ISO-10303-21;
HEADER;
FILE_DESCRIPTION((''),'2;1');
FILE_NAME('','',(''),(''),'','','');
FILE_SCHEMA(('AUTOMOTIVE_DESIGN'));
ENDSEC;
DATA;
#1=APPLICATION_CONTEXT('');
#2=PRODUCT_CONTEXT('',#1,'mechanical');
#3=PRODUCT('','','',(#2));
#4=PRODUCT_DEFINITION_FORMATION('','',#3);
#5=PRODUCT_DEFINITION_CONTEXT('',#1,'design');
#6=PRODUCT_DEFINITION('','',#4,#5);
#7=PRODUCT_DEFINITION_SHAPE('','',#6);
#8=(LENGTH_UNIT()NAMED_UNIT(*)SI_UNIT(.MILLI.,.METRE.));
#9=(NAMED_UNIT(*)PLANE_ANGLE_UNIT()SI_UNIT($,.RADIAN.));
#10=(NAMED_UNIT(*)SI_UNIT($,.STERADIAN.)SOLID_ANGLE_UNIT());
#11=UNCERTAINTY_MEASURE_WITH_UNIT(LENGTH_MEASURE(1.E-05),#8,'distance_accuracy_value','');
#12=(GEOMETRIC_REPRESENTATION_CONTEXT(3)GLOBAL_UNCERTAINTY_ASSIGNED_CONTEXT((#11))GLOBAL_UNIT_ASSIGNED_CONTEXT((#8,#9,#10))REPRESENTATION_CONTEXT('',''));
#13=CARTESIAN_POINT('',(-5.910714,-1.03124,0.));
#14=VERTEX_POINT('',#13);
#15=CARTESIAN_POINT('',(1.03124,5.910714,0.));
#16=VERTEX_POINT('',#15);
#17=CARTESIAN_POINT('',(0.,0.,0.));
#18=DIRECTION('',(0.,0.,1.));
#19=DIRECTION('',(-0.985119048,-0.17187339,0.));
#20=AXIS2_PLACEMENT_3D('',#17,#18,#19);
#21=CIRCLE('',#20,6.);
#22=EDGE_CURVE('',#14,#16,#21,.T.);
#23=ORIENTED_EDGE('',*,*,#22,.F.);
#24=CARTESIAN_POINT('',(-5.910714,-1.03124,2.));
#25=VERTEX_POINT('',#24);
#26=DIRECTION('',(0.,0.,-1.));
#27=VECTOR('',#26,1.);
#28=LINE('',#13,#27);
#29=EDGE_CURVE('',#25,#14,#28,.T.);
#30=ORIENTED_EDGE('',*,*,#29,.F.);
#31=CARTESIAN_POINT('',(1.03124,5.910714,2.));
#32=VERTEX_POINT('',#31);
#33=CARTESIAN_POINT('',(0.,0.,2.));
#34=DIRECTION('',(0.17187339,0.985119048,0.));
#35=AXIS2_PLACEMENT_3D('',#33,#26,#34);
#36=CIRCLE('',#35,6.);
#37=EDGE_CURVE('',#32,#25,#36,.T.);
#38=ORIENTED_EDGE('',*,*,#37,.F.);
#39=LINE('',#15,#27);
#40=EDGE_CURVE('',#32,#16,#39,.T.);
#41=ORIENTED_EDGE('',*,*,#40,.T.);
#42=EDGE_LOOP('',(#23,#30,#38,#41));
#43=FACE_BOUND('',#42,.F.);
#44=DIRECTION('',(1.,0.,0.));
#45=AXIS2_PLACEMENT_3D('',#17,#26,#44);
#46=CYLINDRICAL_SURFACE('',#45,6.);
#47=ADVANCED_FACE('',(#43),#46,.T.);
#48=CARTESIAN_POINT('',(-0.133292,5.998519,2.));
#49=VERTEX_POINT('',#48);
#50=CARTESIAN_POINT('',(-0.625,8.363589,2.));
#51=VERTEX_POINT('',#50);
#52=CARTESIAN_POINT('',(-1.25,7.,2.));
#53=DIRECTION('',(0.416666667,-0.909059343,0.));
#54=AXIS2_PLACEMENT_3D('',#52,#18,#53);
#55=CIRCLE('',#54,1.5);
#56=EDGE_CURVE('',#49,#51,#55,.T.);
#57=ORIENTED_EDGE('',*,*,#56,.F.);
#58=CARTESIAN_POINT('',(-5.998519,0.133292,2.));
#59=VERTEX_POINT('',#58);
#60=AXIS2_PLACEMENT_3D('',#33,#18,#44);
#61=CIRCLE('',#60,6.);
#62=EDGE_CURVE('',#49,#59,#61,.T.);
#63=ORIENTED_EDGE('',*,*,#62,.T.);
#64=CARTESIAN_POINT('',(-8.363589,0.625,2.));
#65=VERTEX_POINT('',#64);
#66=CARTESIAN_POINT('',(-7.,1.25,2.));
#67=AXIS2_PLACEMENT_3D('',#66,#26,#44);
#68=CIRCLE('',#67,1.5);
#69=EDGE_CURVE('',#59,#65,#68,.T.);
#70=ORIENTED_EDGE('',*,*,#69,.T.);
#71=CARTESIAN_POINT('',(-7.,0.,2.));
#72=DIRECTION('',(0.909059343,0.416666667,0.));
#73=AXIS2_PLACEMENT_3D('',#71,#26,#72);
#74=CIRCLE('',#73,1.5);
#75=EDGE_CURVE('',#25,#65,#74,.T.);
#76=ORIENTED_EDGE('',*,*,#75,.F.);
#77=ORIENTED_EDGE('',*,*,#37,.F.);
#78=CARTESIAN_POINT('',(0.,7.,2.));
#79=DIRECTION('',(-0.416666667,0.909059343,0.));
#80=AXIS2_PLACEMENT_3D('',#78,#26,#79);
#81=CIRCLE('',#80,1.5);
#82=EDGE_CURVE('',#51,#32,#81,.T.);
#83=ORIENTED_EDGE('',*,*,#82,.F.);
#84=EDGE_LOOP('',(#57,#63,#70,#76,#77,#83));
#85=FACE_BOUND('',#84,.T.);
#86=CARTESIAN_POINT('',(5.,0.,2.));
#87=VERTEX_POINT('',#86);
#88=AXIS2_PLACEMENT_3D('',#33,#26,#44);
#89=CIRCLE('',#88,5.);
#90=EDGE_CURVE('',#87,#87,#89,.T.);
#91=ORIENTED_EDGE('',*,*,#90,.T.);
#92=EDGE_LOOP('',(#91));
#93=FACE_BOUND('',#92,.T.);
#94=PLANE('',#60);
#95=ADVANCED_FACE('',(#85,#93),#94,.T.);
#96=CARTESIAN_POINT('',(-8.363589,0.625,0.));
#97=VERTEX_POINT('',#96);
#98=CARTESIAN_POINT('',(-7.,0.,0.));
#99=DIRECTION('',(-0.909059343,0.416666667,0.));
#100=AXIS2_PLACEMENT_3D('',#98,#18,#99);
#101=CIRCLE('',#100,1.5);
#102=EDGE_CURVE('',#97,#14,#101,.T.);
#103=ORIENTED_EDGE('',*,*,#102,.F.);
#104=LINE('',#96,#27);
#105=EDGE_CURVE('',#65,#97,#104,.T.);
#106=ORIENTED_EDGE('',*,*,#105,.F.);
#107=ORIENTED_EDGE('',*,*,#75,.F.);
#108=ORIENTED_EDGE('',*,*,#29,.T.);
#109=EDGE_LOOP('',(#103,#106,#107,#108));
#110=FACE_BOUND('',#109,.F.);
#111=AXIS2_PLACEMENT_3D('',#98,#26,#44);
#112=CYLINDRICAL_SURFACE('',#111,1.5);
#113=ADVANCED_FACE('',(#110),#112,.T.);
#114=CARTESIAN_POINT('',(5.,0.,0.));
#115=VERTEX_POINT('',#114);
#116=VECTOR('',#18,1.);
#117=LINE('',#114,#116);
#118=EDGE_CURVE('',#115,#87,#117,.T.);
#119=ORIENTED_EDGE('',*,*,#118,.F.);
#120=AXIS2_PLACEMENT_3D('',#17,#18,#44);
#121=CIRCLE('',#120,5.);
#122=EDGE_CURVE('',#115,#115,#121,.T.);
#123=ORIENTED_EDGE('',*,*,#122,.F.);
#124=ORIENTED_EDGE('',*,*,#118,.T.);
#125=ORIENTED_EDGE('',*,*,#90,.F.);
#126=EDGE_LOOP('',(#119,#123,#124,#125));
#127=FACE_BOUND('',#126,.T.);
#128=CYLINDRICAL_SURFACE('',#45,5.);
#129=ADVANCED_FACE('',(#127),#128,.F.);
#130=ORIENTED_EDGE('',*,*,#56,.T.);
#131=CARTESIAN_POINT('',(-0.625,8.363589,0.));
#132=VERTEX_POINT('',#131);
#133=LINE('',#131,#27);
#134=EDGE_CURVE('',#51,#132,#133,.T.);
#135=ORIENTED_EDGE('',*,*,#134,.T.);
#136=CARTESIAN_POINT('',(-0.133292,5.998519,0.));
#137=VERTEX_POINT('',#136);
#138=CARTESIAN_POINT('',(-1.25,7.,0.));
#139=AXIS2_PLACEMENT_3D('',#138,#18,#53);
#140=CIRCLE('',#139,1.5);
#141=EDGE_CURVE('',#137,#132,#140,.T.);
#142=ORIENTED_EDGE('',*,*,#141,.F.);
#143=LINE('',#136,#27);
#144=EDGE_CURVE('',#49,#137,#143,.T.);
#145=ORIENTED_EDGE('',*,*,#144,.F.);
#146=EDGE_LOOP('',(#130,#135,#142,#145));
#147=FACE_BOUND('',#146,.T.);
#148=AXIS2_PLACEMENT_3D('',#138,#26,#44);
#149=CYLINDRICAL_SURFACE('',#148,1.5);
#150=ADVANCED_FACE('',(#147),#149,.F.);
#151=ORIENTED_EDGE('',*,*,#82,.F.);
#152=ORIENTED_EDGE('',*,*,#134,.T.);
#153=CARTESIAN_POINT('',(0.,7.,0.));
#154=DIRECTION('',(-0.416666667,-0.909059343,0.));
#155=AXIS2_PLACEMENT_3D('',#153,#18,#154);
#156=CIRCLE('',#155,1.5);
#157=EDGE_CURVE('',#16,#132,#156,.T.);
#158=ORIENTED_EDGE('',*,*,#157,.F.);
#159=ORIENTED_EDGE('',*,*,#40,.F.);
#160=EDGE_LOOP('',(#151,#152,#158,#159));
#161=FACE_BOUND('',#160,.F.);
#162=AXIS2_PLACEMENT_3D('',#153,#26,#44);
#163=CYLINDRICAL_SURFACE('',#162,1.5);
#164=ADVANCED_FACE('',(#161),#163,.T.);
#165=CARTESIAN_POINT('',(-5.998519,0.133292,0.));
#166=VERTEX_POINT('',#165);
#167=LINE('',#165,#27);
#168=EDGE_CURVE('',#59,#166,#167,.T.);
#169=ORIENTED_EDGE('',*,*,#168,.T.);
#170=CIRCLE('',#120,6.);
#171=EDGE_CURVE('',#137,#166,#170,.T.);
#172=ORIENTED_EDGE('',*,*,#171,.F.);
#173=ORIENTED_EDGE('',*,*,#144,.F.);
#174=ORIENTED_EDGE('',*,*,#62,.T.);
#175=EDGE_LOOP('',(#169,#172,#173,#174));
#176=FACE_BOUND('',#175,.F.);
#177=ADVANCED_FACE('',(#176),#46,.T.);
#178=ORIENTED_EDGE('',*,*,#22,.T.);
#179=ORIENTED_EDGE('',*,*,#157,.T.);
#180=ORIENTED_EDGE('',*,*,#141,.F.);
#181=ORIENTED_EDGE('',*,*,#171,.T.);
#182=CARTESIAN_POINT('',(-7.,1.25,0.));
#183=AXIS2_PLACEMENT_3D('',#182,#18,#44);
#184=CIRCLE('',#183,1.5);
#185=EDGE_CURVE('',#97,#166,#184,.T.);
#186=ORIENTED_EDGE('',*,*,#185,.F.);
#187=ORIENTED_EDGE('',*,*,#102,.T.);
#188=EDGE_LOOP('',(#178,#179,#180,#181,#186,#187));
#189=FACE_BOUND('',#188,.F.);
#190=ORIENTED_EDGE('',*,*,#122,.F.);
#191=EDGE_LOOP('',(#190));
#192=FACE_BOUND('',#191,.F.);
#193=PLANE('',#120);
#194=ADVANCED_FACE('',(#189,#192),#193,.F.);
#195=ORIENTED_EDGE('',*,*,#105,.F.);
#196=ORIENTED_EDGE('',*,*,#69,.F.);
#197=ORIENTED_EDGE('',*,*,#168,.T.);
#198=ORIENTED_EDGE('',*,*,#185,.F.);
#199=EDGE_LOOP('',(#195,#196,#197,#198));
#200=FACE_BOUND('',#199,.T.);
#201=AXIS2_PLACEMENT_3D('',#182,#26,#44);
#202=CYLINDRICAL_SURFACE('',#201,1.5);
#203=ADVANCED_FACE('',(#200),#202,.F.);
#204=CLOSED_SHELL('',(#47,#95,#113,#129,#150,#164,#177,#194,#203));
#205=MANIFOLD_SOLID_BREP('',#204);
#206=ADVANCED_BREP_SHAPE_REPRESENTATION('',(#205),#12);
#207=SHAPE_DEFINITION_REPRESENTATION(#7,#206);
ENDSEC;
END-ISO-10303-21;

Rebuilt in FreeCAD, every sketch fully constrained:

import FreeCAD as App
import Part
import Sketcher

V = App.Vector
Q = App.Units.Quantity

doc = App.newDocument("Part")
body = doc.addObject("PartDesign::Body", "Body")

# Sketch on XY plane
sketch1 = doc.addObject("Sketcher::SketchObject", "Sketch")
body.addObject(sketch1)
sketch1.AttachmentSupport = (doc.XY_Plane, [""])
sketch1.MapMode = "FlatFace"
sketch1.addGeometry(Part.Circle(V(0, 0, 0), V(0, 0, 1), 5), False)
sketch1.addConstraint(Sketcher.Constraint("Coincident", 0, 3, -1, 1))
sketch1.addConstraint(Sketcher.Constraint("Diameter", 0, Q("10 mm")))
pad1 = doc.addObject("PartDesign::Pad", "Pad")
body.addObject(pad1)
pad1.Profile = sketch1
pad1.Length = 3
body2 = doc.addObject("PartDesign::Body", "Body001")

# Sketch on XY plane
sketch2 = doc.addObject("Sketcher::SketchObject", "Sketch001")
body2.addObject(sketch2)
sketch2.AttachmentSupport = (doc.getObject("XY_Plane001"), [""])
sketch2.MapMode = "FlatFace"
sketch2.addGeometry(Part.Circle(V(0, 0, 0), V(0, 0, 1), 6), False)
sketch2.addConstraint(Sketcher.Constraint("Coincident", 0, 3, -1, 1))
sketch2.addConstraint(Sketcher.Constraint("Diameter", 0, Q("12 mm")))
pad2 = doc.addObject("PartDesign::Pad", "Pad001")
body2.addObject(pad2)
pad2.Profile = sketch2
pad2.Length = 2
doc.recompute()

boolean = doc.addObject("PartDesign::Boolean", "Boolean")
body2.addObject(boolean)
boolean.Type = "Cut"
boolean.addObjects([body])
body3 = doc.addObject("PartDesign::Body", "Body002")

# Sketch on XY plane
sketch3 = doc.addObject("Sketcher::SketchObject", "Sketch002")
body3.addObject(sketch3)
sketch3.AttachmentSupport = (doc.getObject("XY_Plane002"), [""])
sketch3.MapMode = "FlatFace"
sketch3.addGeometry(Part.Circle(V(-1.2, 7, 0), V(0, 0, 1), 1.5), False)
sketch3.addConstraint(Sketcher.Constraint("Diameter", 0, Q("3 mm")))
sketch3.addConstraint(Sketcher.Constraint("DistanceY", -1, 1, 0, 3, Q("7 mm")))
sketch3.addConstraint(Sketcher.Constraint("DistanceX", 0, 3, -1, 1, Q("1.25 mm")))
pad3 = doc.addObject("PartDesign::Pad", "Pad002")
body3.addObject(pad3)
pad3.Profile = sketch3
pad3.Length = 10
body4 = doc.addObject("PartDesign::Body", "Body003")
body4.AllowCompound = True

# Sketch on XY plane
sketch4 = doc.addObject("Sketcher::SketchObject", "Sketch003")
body4.addObject(sketch4)
sketch4.AttachmentSupport = (doc.getObject("XY_Plane003"), [""])
sketch4.MapMode = "FlatFace"
sketch4.addGeometry(Part.Circle(V(-7, 1.2, 0), V(0, 0, 1), 1.5), False)
sketch4.addConstraint(Sketcher.Constraint("Diameter", 0, Q("3 mm")))
sketch4.addConstraint(Sketcher.Constraint("DistanceX", 0, 3, -1, 1, Q("7 mm")))
sketch4.addConstraint(Sketcher.Constraint("DistanceY", -1, 1, 0, 3, Q("1.25 mm")))
pad4 = doc.addObject("PartDesign::Pad", "Pad003")
body4.addObject(pad4)
pad4.Profile = sketch4
pad4.Length = 10
doc.recompute()

boolean2 = doc.addObject("PartDesign::Boolean", "Boolean001")
body4.addObject(boolean2)
boolean2.Type = "Fuse"
boolean2.addObjects([body3])
body5 = doc.addObject("PartDesign::Body", "Body004")

# Sketch on XY plane
sketch5 = doc.addObject("Sketcher::SketchObject", "Sketch004")
body5.addObject(sketch5)
sketch5.AttachmentSupport = (doc.getObject("XY_Plane004"), [""])
sketch5.MapMode = "FlatFace"
sketch5.addGeometry(Part.Circle(V(0, 7, 0), V(0, 0, 1), 1.5), False)
sketch5.addConstraint(Sketcher.Constraint("PointOnObject", 0, 3, -2))
sketch5.addConstraint(Sketcher.Constraint("Diameter", 0, Q("3 mm")))
sketch5.addConstraint(Sketcher.Constraint("DistanceY", -1, 1, 0, 3, Q("7 mm")))
pad5 = doc.addObject("PartDesign::Pad", "Pad004")
body5.addObject(pad5)
pad5.Profile = sketch5
pad5.Length = 2
body6 = doc.addObject("PartDesign::Body", "Body005")
body6.AllowCompound = True

# Sketch on XY plane
sketch6 = doc.addObject("Sketcher::SketchObject", "Sketch005")
body6.addObject(sketch6)
sketch6.AttachmentSupport = (doc.getObject("XY_Plane005"), [""])
sketch6.MapMode = "FlatFace"
sketch6.addGeometry(Part.Circle(V(-7, 0, 0), V(0, 0, 1), 1.5), False)
sketch6.addConstraint(Sketcher.Constraint("PointOnObject", 0, 3, -1))
sketch6.addConstraint(Sketcher.Constraint("Diameter", 0, Q("3 mm")))
sketch6.addConstraint(Sketcher.Constraint("DistanceX", 0, 3, -1, 1, Q("7 mm")))
pad6 = doc.addObject("PartDesign::Pad", "Pad005")
body6.addObject(pad6)
pad6.Profile = sketch6
pad6.Length = 2
doc.recompute()

boolean3 = doc.addObject("PartDesign::Boolean", "Boolean002")
body6.addObject(boolean3)
boolean3.Type = "Fuse"
boolean3.addObjects([body5])
doc.recompute()

boolean4 = doc.addObject("PartDesign::Boolean", "Boolean003")
body6.addObject(boolean4)
boolean4.Type = "Cut"
boolean4.addObjects([body4])
doc.recompute()

boolean5 = doc.addObject("PartDesign::Boolean", "Boolean004")
body6.addObject(boolean5)
boolean5.Type = "Fuse"
boolean5.addObjects([body2])

doc.recompute()
